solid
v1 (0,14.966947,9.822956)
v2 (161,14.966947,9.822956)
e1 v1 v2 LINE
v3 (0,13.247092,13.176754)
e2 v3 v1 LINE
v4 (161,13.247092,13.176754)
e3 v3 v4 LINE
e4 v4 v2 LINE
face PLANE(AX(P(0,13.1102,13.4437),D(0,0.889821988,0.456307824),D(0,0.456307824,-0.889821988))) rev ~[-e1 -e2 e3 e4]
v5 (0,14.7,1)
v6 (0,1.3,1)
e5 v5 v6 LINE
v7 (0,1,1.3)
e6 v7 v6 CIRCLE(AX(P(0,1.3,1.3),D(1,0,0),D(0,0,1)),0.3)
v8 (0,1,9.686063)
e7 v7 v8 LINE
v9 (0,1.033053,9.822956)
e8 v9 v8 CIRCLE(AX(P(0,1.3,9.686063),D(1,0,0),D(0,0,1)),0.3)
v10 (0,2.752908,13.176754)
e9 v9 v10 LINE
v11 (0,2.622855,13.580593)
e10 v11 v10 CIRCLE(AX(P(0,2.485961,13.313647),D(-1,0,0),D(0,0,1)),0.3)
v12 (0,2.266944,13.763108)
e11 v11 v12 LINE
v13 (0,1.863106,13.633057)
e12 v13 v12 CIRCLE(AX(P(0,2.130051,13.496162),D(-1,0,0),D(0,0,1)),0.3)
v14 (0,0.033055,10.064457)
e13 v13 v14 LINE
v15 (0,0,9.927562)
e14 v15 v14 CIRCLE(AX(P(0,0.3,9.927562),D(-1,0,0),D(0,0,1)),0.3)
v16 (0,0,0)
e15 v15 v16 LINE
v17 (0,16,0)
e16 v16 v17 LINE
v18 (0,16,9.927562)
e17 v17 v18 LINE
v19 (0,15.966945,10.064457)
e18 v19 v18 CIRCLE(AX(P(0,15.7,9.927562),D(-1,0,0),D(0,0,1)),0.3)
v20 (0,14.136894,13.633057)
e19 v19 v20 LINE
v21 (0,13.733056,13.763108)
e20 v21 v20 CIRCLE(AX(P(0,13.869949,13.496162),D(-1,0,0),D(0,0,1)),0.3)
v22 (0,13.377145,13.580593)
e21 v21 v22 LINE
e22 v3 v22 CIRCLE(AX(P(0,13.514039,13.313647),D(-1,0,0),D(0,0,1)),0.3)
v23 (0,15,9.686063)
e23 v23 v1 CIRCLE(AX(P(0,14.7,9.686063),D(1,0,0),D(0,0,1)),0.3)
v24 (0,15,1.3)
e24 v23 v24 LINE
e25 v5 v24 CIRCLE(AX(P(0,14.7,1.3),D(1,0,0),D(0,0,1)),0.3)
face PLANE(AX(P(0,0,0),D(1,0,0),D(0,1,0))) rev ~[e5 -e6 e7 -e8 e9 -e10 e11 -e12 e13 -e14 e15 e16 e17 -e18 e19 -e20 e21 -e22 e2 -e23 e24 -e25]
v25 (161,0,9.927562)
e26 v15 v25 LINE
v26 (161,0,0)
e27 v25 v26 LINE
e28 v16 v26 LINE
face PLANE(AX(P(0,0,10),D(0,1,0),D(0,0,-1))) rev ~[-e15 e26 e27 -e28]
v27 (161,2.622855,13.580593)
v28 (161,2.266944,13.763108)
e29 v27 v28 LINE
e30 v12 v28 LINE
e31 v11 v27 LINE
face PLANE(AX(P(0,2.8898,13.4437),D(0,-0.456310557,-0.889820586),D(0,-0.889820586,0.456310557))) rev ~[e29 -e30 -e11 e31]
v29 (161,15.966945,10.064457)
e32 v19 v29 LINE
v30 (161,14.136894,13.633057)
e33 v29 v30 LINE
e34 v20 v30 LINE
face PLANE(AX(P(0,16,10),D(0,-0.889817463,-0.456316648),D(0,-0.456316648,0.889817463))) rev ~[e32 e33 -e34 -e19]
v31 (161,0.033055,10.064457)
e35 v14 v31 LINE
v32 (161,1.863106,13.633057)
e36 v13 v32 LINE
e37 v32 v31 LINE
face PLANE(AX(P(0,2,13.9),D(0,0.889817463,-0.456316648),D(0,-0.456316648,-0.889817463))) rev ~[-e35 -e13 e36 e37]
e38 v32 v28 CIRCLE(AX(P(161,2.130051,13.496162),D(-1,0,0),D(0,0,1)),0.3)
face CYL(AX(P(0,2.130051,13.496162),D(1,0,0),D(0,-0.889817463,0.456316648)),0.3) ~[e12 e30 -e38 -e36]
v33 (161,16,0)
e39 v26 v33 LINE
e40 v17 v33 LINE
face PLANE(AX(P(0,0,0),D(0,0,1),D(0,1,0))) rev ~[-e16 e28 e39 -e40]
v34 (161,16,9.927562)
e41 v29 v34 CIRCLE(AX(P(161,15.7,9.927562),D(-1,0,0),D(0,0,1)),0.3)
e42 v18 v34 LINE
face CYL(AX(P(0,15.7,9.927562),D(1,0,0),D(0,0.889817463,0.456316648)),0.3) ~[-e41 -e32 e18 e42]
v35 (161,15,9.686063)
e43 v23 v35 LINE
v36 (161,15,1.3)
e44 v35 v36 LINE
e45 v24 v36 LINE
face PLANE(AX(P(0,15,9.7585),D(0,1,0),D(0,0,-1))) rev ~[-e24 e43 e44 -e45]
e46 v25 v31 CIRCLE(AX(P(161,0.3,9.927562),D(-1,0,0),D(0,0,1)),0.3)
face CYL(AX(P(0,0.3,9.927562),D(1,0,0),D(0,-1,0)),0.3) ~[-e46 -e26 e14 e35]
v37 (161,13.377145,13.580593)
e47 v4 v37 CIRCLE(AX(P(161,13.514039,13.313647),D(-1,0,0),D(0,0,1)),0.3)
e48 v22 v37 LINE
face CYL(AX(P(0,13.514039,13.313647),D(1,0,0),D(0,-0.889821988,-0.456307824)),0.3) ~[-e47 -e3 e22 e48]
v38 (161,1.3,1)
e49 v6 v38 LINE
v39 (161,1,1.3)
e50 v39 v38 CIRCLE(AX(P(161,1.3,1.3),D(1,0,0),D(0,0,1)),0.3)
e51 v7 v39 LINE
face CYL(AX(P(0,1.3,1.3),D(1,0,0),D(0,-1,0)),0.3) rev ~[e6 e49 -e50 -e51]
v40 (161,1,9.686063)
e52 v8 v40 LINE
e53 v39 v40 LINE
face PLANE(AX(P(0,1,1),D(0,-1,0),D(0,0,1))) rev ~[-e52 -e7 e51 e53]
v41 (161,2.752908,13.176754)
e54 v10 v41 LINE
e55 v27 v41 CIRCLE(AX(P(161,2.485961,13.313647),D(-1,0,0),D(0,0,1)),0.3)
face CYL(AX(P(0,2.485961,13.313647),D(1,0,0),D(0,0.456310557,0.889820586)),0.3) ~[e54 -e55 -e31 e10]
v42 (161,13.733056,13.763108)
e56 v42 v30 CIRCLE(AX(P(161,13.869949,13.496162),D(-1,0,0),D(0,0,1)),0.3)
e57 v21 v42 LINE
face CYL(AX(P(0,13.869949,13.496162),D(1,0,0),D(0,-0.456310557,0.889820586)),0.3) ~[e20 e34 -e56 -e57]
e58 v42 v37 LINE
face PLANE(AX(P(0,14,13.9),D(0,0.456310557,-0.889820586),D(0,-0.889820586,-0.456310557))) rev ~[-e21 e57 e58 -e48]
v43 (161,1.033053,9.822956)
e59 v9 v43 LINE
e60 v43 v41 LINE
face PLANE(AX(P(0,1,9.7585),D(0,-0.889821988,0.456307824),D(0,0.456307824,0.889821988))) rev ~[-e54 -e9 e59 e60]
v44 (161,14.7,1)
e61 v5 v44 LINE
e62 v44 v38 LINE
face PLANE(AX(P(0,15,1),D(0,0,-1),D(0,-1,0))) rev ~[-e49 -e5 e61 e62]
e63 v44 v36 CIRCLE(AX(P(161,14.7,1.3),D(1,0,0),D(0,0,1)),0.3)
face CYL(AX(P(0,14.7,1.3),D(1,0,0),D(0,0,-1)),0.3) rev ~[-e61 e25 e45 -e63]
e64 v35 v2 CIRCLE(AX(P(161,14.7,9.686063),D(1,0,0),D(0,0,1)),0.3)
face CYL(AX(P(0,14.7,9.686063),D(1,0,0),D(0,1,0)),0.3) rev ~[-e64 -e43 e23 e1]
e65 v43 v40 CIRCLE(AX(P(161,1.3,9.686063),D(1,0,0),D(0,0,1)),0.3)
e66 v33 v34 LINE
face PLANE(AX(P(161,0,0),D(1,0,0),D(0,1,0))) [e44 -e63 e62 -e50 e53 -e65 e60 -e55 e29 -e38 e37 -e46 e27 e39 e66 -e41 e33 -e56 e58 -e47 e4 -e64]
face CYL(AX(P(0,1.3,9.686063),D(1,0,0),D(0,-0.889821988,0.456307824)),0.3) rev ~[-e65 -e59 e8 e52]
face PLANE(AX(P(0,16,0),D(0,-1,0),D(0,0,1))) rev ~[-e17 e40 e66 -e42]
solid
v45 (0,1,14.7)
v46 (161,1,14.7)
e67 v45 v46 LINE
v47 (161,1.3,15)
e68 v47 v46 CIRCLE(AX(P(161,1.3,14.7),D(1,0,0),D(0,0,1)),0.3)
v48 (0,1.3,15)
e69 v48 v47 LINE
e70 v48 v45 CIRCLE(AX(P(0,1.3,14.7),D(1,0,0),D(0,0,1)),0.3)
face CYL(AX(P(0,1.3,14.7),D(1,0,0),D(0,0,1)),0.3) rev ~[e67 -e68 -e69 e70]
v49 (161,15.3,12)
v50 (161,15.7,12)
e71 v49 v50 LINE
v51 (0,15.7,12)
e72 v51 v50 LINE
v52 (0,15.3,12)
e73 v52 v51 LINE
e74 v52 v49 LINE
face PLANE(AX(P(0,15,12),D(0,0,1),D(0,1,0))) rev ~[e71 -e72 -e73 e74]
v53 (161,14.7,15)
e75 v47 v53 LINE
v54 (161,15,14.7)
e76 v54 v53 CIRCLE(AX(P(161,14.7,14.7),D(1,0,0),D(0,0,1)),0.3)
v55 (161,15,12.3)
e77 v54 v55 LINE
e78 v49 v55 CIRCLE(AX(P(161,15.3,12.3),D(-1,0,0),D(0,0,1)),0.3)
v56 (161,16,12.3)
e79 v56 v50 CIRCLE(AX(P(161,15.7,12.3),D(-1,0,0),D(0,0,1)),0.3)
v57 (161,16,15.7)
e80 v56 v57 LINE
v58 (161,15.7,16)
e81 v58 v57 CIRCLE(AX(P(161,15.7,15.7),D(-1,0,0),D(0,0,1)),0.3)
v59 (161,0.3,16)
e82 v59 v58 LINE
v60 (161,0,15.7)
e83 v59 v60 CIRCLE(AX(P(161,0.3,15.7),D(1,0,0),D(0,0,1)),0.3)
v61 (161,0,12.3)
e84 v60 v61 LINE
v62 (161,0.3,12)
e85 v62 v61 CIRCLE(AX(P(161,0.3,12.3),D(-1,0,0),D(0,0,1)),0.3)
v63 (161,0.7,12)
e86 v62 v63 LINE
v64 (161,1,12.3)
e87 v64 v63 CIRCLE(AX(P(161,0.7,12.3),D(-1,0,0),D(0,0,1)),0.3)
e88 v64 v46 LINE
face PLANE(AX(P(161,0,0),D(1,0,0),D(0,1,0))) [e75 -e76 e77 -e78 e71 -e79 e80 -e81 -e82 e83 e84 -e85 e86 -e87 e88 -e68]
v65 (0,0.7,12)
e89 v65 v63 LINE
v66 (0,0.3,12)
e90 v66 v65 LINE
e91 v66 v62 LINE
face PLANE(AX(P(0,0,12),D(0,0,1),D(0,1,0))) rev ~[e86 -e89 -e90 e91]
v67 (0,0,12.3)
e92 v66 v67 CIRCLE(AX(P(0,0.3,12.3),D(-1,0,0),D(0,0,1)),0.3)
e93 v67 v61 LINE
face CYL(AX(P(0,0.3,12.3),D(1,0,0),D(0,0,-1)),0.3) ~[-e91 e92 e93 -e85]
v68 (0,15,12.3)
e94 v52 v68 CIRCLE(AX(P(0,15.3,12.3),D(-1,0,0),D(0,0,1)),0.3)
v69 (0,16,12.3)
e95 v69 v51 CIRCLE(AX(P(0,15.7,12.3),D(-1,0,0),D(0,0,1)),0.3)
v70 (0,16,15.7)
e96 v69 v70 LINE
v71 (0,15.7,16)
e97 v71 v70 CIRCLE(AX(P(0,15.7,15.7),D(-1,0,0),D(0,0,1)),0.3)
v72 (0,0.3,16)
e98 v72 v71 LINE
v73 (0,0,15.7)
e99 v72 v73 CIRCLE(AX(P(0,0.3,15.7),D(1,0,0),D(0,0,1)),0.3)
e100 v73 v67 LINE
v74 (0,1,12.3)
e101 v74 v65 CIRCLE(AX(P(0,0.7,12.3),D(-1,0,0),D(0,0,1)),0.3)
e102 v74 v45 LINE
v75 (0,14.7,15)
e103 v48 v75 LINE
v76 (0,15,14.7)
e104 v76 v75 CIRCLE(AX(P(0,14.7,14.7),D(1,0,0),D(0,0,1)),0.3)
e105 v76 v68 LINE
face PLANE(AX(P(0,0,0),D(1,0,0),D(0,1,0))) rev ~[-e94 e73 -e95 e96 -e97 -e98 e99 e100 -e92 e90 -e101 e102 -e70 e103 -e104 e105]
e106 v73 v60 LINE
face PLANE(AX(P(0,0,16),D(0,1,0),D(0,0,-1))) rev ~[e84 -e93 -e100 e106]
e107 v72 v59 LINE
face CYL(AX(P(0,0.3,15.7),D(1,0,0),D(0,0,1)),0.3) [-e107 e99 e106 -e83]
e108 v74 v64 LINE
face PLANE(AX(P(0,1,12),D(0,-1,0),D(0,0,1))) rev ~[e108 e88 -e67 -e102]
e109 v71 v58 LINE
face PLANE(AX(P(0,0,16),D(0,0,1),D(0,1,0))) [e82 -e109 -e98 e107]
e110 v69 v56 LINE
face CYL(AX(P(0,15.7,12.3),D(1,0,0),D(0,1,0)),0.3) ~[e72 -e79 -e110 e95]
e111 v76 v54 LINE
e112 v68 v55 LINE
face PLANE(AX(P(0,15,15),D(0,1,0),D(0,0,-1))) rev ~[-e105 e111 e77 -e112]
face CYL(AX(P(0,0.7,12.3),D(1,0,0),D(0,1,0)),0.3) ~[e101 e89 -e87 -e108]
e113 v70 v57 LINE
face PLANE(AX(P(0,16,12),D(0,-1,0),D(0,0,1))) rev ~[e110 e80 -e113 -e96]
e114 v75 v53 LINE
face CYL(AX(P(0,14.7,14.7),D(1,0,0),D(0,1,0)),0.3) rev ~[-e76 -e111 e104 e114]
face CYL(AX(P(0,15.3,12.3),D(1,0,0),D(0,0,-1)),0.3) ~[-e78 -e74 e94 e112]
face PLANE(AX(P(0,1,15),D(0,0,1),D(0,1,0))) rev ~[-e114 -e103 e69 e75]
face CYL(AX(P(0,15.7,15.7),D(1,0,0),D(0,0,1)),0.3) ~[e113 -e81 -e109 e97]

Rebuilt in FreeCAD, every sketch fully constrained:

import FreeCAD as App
import Part
import Sketcher
Q = App.Units.Quantity


def edges_at(feature, points):
    """Names of the edges that pass closest to the given points."""
    edges = feature.Shape.Edges
    near = lambda p: min(range(len(edges)), key=lambda i: edges[i].distToShape(Part.Vertex(*p))[0])
    return sorted({f"Edge{near(p) + 1}" for p in points})


def add_polygon(sketch, points):
    """Adds a closed chain of lines whose ends are joined by coincident constraints."""
    first, n = sketch.GeometryCount, len(points)
    for a, b in zip(points, points[1:] + points[:1]):
        sketch.addGeometry(Part.LineSegment(App.Vector(*a, 0), App.Vector(*b, 0)), False)
    for i in range(n):
        sketch.addConstraint(Sketcher.Constraint("Coincident", first + i, 2, first + (i + 1) % n, 1))

doc = App.newDocument("Part")
body = doc.addObject("PartDesign::Body", "Body")
body.AllowCompound = True

# Sketch on YZ plane
sketch1 = body.newObject("Sketcher::SketchObject", "Sketch")
sketch1.AttachmentSupport = (doc.getObject("YZ_Plane"), [""])
sketch1.MapMode = "FlatFace"
add_polygon(sketch1, [(0, 10), (0, 0), (16, 0), (16, 10), (14, 13.9), (13.1102, 13.4437), (15, 9.7585), (15, 1), (1, 1), (1, 9.7585), (2.8898, 13.4437), (2, 13.9)])  # lines 0-11
add_polygon(sketch1, [(16, 16), (0, 16), (0, 12), (1, 12), (1, 15), (15, 15), (15, 12), (16, 12)])  # lines 12-19
sketch1.addConstraint([
    Sketcher.Constraint("Vertical", 0),
    Sketcher.Constraint("Horizontal", 1),
    Sketcher.Constraint("Vertical", 2),
    Sketcher.Constraint("Vertical", 6),
    Sketcher.Constraint("Horizontal", 7),
    Sketcher.Constraint("Vertical", 8),
    Sketcher.Constraint("Horizontal", 12),
    Sketcher.Constraint("Vertical", 13),
    Sketcher.Constraint("Horizontal", 14),
    Sketcher.Constraint("Vertical", 15),
    Sketcher.Constraint("Horizontal", 16),
    Sketcher.Constraint("Vertical", 17),
    Sketcher.Constraint("Horizontal", 18),
    Sketcher.Constraint("Vertical", 19),
    Sketcher.Constraint("Coincident", 0, 2, -1, 1),
    Sketcher.Constraint("PointOnObject", 12, 2, -2),
    Sketcher.Constraint("Perpendicular", 3, 4),
    Sketcher.Constraint("Perpendicular", 4, 5),
    Sketcher.Constraint("Perpendicular", 9, 10),
    Sketcher.Constraint("Perpendicular", 10, 11),
    Sketcher.Constraint("Horizontal", 5, 2, 8, 2),
    Sketcher.Constraint("Horizontal", 4, 2, 9, 2),
    Sketcher.Constraint("Horizontal", 3, 2, 10, 2),
    Sketcher.Constraint("Horizontal", 2, 2, 11, 2),
    Sketcher.Constraint("Horizontal", 14, 2, 17, 2),
    Sketcher.Constraint("Vertical", 8, 2, 14, 2),
    Sketcher.Constraint("Vertical", 6, 2, 16, 2),
    Sketcher.Constraint("Vertical", 2, 2, 18, 2),
    Sketcher.Constraint("Equal", 14, 18),
    Sketcher.Constraint("DistanceX", 1, 1, 1, 2, Q("16 mm")),
    Sketcher.Constraint("DistanceX", 14, 1, 14, 2, Q("1 mm")),
    Sketcher.Constraint("DistanceY", 0, 2, 0, 1, Q("10 mm")),
    Sketcher.Constraint("DistanceY", 13, 2, 13, 1, Q("4 mm")),
    Sketcher.Constraint("Distance", 4, Q("1 mm")),
    Sketcher.Constraint("DistanceY", -1, 1, 6, 2, Q("1 mm")),
    Sketcher.Constraint("DistanceX", -1, 1, 10, 2, Q("2 mm")),
    Sketcher.Constraint("DistanceY", -1, 1, 12, 2, Q("16 mm")),
    Sketcher.Constraint("DistanceY", 15, 2, 12, 2, Q("1 mm")),
    Sketcher.Constraint("DistanceY", -1, 1, 3, 2, Q("13.9 mm")),
])
pad1 = body.newObject("PartDesign::Pad", "Pad")
pad1.Profile = sketch1
pad1.Length = 161
doc.recompute()

fillet = body.newObject("PartDesign::Fillet", "Fillet")
fillet.Base = (pad1, edges_at(pad1, [
    (80.5, 0, 16),
    (80.5, 16, 16),
    (80.5, 16, 12),
    (80.5, 0, 12),
    (80.5, 1, 12),
    (80.5, 15, 12),
    (80.5, 1, 15),
    (80.5, 15, 15),
    (80.5, 0, 10),
    (80.5, 16, 10),
    (80.5, 14, 13.9),
    (80.5, 13.11, 13.444),
    (80.5, 2, 13.9),
    (80.5, 2.89, 13.444),
    (80.5, 15, 1),
    (80.5, 1, 1),
    (80.5, 1, 9.758),
    (80.5, 15, 9.758),
]))
fillet.Radius = 0.3

doc.recompute()
